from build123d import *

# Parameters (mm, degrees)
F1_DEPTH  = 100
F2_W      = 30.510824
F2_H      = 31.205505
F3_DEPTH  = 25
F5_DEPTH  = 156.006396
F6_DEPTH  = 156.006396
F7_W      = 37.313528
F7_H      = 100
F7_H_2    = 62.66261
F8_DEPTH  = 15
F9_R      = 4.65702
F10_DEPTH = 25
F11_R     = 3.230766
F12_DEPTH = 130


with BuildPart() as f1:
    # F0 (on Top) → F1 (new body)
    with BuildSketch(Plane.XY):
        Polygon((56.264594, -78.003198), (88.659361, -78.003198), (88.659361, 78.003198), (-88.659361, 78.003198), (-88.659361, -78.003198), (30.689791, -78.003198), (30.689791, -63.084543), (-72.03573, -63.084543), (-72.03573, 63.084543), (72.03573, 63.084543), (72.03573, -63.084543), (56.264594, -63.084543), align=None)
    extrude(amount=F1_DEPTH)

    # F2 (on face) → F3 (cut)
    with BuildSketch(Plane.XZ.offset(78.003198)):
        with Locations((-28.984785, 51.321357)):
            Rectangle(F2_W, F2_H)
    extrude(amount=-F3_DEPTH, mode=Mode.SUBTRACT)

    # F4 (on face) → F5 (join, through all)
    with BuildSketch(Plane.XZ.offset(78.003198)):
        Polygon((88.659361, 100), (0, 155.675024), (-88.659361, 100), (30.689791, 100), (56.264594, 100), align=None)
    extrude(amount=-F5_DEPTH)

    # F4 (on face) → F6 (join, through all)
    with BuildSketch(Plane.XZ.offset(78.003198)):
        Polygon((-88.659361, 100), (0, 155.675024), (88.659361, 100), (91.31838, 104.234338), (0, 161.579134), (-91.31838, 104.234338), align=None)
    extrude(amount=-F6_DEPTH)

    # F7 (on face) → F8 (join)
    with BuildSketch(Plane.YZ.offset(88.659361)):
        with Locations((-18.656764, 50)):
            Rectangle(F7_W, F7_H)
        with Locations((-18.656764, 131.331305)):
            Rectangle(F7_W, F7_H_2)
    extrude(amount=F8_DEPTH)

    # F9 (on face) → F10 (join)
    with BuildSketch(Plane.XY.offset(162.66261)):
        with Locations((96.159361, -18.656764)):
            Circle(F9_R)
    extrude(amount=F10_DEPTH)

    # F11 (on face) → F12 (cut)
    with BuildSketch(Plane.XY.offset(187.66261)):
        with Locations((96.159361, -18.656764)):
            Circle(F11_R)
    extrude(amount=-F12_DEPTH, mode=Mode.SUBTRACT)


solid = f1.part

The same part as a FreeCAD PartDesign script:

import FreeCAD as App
import Part
import Sketcher
from FreeCAD import Vector
Q = App.Units.Quantity

doc = App.newDocument("Part")
body = doc.addObject("PartDesign::Body", "Body")

sketch1 = doc.addObject("Sketcher::SketchObject", "Sketch")
body.addObject(sketch1)
sketch1.AttachmentSupport = (doc.XY_Plane, [""])
sketch1.MapMode = "FlatFace"
sketch1.addGeometry([
    Part.LineSegment(Vector(56, -78, 0), Vector(89, -78, 0)),
    Part.LineSegment(Vector(89, -78, 0), Vector(89, 78, 0)),
    Part.LineSegment(Vector(89, 78, 0), Vector(-89, 78, 0)),
    Part.LineSegment(Vector(-89, 78, 0), Vector(-89, -78, 0)),
    Part.LineSegment(Vector(-89, -78, 0), Vector(31, -78, 0)),
    Part.LineSegment(Vector(31, -78, 0), Vector(31, -63, 0)),
    Part.LineSegment(Vector(31, -63, 0), Vector(-72, -63, 0)),
    Part.LineSegment(Vector(-72, -63, 0), Vector(-72, 63, 0)),
    Part.LineSegment(Vector(-72, 63, 0), Vector(72, 63, 0)),
    Part.LineSegment(Vector(72, 63, 0), Vector(72, -63, 0)),
    Part.LineSegment(Vector(72, -63, 0), Vector(56, -63, 0)),
    Part.LineSegment(Vector(56, -63, 0), Vector(56, -78, 0)),
], False)
sketch1.addConstraint([
    Sketcher.Constraint("Coincident", 0, 2, 1, 1),
    Sketcher.Constraint("Coincident", 1, 2, 2, 1),
    Sketcher.Constraint("Coincident", 2, 2, 3, 1),
    Sketcher.Constraint("Coincident", 3, 2, 4, 1),
    Sketcher.Constraint("Coincident", 4, 2, 5, 1),
    Sketcher.Constraint("Coincident", 5, 2, 6, 1),
    Sketcher.Constraint("Coincident", 6, 2, 7, 1),
    Sketcher.Constraint("Coincident", 7, 2, 8, 1),
    Sketcher.Constraint("Coincident", 8, 2, 9, 1),
    Sketcher.Constraint("Coincident", 9, 2, 10, 1),
    Sketcher.Constraint("Coincident", 10, 2, 11, 1),
    Sketcher.Constraint("Coincident", 11, 2, 0, 1),
    Sketcher.Constraint("Horizontal", 0),
    Sketcher.Constraint("Vertical", 1),
    Sketcher.Constraint("Horizontal", 2),
    Sketcher.Constraint("Vertical", 3),
    Sketcher.Constraint("Horizontal", 4),
    Sketcher.Constraint("Vertical", 5),
    Sketcher.Constraint("Horizontal", 6),
    Sketcher.Constraint("Vertical", 7),
    Sketcher.Constraint("Horizontal", 8),
    Sketcher.Constraint("Vertical", 9),
    Sketcher.Constraint("Horizontal", 10),
    Sketcher.Constraint("Vertical", 11),
    Sketcher.Constraint("Symmetric", 0, 2, 2, 2, -1, 1),
    Sketcher.Constraint("Symmetric", 6, 2, 8, 2, -1, 1),
    Sketcher.Constraint("Horizontal", 0, 2, 3, 2),
    Sketcher.Constraint("Horizontal", 6, 2, 9, 2),
    Sketcher.Constraint("DistanceX", 2, 2, 2, 1, Q("177.318722 mm")),
    Sketcher.Constraint("DistanceX", 6, 2, 6, 1, Q("102.725521 mm")),
    Sketcher.Constraint("DistanceX", 8, 1, 8, 2, Q("144.07146 mm")),
    Sketcher.Constraint("DistanceX", 0, 1, 0, 2, Q("32.394767 mm")),
    Sketcher.Constraint("DistanceY", 1, 1, 1, 2, Q("156.006396 mm")),
    Sketcher.Constraint("DistanceY", 5, 1, 5, 2, Q("14.918655 mm")),
])
pad1 = doc.addObject("PartDesign::Pad", "Pad")
body.addObject(pad1)
pad1.Profile = sketch1
pad1.Length = 100

sketch2 = doc.addObject("Sketcher::SketchObject", "Sketch001")
body.addObject(sketch2)
sketch2.AttachmentSupport = (doc.XZ_Plane, [""])
sketch2.MapMode = "FlatFace"
sketch2.AttachmentOffset = App.Placement(Vector(0, 0, 78.003198), App.Rotation())
sketch2.addGeometry([
    Part.LineSegment(Vector(-44, 67, 0), Vector(-44, 36, 0)),
    Part.LineSegment(Vector(-44, 36, 0), Vector(-14, 36, 0)),
    Part.LineSegment(Vector(-14, 36, 0), Vector(-14, 67, 0)),
    Part.LineSegment(Vector(-14, 67, 0), Vector(-44, 67, 0)),
], False)
sketch2.addConstraint([
    Sketcher.Constraint("Coincident", 0, 2, 1, 1),
    Sketcher.Constraint("Coincident", 1, 2, 2, 1),
    Sketcher.Constraint("Coincident", 2, 2, 3, 1),
    Sketcher.Constraint("Coincident", 3, 2, 0, 1),
    Sketcher.Constraint("Vertical", 0),
    Sketcher.Constraint("Horizontal", 1),
    Sketcher.Constraint("Vertical", 2),
    Sketcher.Constraint("Horizontal", 3),
    Sketcher.Constraint("DistanceX", 1, 1, 1, 2, Q("30.510824 mm")),
    Sketcher.Constraint("DistanceY", 0, 2, 0, 1, Q("31.205505 mm")),
    Sketcher.Constraint("DistanceY", -1, 1, 2, 2, Q("66.92411 mm")),
    Sketcher.Constraint("DistanceX", 0, 2, -1, 1, Q("44.240197 mm")),
])
pocket1 = doc.addObject("PartDesign::Pocket", "Pocket")
body.addObject(pocket1)
pocket1.Profile = sketch2
pocket1.Length = 25

sketch3 = doc.addObject("Sketcher::SketchObject", "Sketch002")
body.addObject(sketch3)
sketch3.AttachmentSupport = (doc.XZ_Plane, [""])
sketch3.MapMode = "FlatFace"
sketch3.AttachmentOffset = App.Placement(Vector(0, 0, 78.003198), App.Rotation())
sketch3.addGeometry([
    Part.LineSegment(Vector(89, 100, 0), Vector(0, 156, 0)),
    Part.LineSegment(Vector(0, 156, 0), Vector(-89, 100, 0)),
    Part.LineSegment(Vector(-89, 100, 0), Vector(89, 100, 0)),
], False)
sketch3.addConstraint([
    Sketcher.Constraint("Coincident", 0, 2, 1, 1),
    Sketcher.Constraint("Coincident", 1, 2, 2, 1),
    Sketcher.Constraint("Coincident", 2, 2, 0, 1),
    Sketcher.Constraint("Horizontal", 2),
    Sketcher.Constraint("PointOnObject", 0, 2, -2),
    Sketcher.Constraint("Equal", 0, 1),
    Sketcher.Constraint("DistanceY", -1, 1, 1, 2, Q("100 mm")),
    Sketcher.Constraint("DistanceX", 2, 1, 2, 2, Q("177.318722 mm")),
    Sketcher.Constraint("Distance", 0, Q("104.690929 mm")),
])
pad2 = doc.addObject("PartDesign::Pad", "Pad001")
body.addObject(pad2)
pad2.Profile = sketch3
pad2.Length = 156.006396
pad2.Reversed = True

sketch4 = doc.addObject("Sketcher::SketchObject", "Sketch003")
body.addObject(sketch4)
sketch4.AttachmentSupport = (doc.XZ_Plane, [""])
sketch4.MapMode = "FlatFace"
sketch4.AttachmentOffset = App.Placement(Vector(0, 0, 78.003198), App.Rotation())
sketch4.addGeometry([
    Part.LineSegment(Vector(-89, 100, 0), Vector(0, 156, 0)),
    Part.LineSegment(Vector(0, 156, 0), Vector(89, 100, 0)),
    Part.LineSegment(Vector(89, 100, 0), Vector(91, 104, 0)),
    Part.LineSegment(Vector(91, 104, 0), Vector(0, 162, 0)),
    Part.LineSegment(Vector(0, 162, 0), Vector(-91, 104, 0)),
    Part.LineSegment(Vector(-91, 104, 0), Vector(-89, 100, 0)),
], False)
sketch4.addConstraint([
    Sketcher.Constraint("Coincident", 0, 2, 1, 1),
    Sketcher.Constraint("Coincident", 1, 2, 2, 1),
    Sketcher.Constraint("Coincident", 2, 2, 3, 1),
    Sketcher.Constraint("Coincident", 3, 2, 4, 1),
    Sketcher.Constraint("Coincident", 4, 2, 5, 1),
    Sketcher.Constraint("Coincident", 5, 2, 0, 1),
    Sketcher.Constraint("Symmetric", 2, 2, 4, 2, -2),
    Sketcher.Constraint("Symmetric", 1, 2, 5, 2, -2),
    Sketcher.Constraint("PointOnObject", 0, 2, -2),
    Sketcher.Constraint("PointOnObject", 3, 2, -2),
    Sketcher.Constraint("Perpendicular", 1, 2),
    Sketcher.Constraint("Perpendicular", 2, 3),
    Sketcher.Constraint("Distance", 2, Q("5 mm")),
    Sketcher.Constraint("DistanceY", -1, 1, 1, 2, Q("100 mm")),
    Sketcher.Constraint("Distance", 0, Q("104.690929 mm")),
    Sketcher.Constraint("DistanceX", -1, 1, 1, 2, Q("88.659361 mm")),
])
pad3 = doc.addObject("PartDesign::Pad", "Pad002")
body.addObject(pad3)
pad3.Profile = sketch4
pad3.Type = "UpToLast"
pad3.Reversed = True

sketch5 = doc.addObject("Sketcher::SketchObject", "Sketch004")
body.addObject(sketch5)
sketch5.AttachmentSupport = (doc.YZ_Plane, [""])
sketch5.MapMode = "FlatFace"
sketch5.AttachmentOffset = App.Placement(Vector(0, 0, 88.659361), App.Rotation())
sketch5.addGeometry([
    Part.LineSegment(Vector(-37, 0, 0), Vector(0, 0, 0)),
    Part.LineSegment(Vector(0, 0, 0), Vector(0, 163, 0)),
    Part.LineSegment(Vector(0, 163, 0), Vector(-37, 163, 0)),
    Part.LineSegment(Vector(-37, 163, 0), Vector(-37, 0, 0)),
], False)
sketch5.addConstraint([
    Sketcher.Constraint("Coincident", 0, 2, 1, 1),
    Sketcher.Constraint("Coincident", 1, 2, 2, 1),
    Sketcher.Constraint("Coincident", 2, 2, 3, 1),
    Sketcher.Constraint("Coincident", 3, 2, 0, 1),
    Sketcher.Constraint("Horizontal", 0),
    Sketcher.Constraint("Vertical", 1),
    Sketcher.Constraint("Horizontal", 2),
    Sketcher.Constraint("Vertical", 3),
    Sketcher.Constraint("Coincident", 0, 2, -1, 1),
    Sketcher.Constraint("DistanceY", 1, 1, 1, 2, Q("162.66261 mm")),
    Sketcher.Constraint("DistanceX", 0, 1, 0, 2, Q("37.313528 mm")),
])
pad4 = doc.addObject("PartDesign::Pad", "Pad003")
body.addObject(pad4)
pad4.Profile = sketch5
pad4.Length = 15

sketch6 = doc.addObject("Sketcher::SketchObject", "Sketch005")
body.addObject(sketch6)
sketch6.AttachmentSupport = (doc.XY_Plane, [""])
sketch6.MapMode = "FlatFace"
sketch6.AttachmentOffset = App.Placement(Vector(0, 0, 162.66261), App.Rotation())
sketch6.addGeometry(Part.Circle(Vector(96.2, -18.7, 0), Vector(0, 0, 1), 4.7), False)
sketch6.addConstraint([
    Sketcher.Constraint("Diameter", 0, Q("9.31404 mm")),
    Sketcher.Constraint("DistanceX", -1, 1, 0, 3, Q("96.159361 mm")),
    Sketcher.Constraint("DistanceY", 0, 3, -1, 1, Q("18.656764 mm")),
])
pad5 = doc.addObject("PartDesign::Pad", "Pad004")
body.addObject(pad5)
pad5.Profile = sketch6
pad5.Length = 25

sketch7 = doc.addObject("Sketcher::SketchObject", "Sketch006")
body.addObject(sketch7)
sketch7.AttachmentSupport = (doc.XY_Plane, [""])
sketch7.MapMode = "FlatFace"
sketch7.AttachmentOffset = App.Placement(Vector(0, 0, 187.66261), App.Rotation())
sketch7.addGeometry(Part.Circle(Vector(96.2, -18.7, 0), Vector(0, 0, 1), 3.2), False)
sketch7.addConstraint([
    Sketcher.Constraint("Diameter", 0, Q("6.461532 mm")),
    Sketcher.Constraint("DistanceX", -1, 1, 0, 3, Q("96.159361 mm")),
    Sketcher.Constraint("DistanceY", 0, 3, -1, 1, Q("18.656764 mm")),
])
pocket2 = doc.addObject("PartDesign::Pocket", "Pocket001")
body.addObject(pocket2)
pocket2.Profile = sketch7
pocket2.Length = 130

doc.recompute()
